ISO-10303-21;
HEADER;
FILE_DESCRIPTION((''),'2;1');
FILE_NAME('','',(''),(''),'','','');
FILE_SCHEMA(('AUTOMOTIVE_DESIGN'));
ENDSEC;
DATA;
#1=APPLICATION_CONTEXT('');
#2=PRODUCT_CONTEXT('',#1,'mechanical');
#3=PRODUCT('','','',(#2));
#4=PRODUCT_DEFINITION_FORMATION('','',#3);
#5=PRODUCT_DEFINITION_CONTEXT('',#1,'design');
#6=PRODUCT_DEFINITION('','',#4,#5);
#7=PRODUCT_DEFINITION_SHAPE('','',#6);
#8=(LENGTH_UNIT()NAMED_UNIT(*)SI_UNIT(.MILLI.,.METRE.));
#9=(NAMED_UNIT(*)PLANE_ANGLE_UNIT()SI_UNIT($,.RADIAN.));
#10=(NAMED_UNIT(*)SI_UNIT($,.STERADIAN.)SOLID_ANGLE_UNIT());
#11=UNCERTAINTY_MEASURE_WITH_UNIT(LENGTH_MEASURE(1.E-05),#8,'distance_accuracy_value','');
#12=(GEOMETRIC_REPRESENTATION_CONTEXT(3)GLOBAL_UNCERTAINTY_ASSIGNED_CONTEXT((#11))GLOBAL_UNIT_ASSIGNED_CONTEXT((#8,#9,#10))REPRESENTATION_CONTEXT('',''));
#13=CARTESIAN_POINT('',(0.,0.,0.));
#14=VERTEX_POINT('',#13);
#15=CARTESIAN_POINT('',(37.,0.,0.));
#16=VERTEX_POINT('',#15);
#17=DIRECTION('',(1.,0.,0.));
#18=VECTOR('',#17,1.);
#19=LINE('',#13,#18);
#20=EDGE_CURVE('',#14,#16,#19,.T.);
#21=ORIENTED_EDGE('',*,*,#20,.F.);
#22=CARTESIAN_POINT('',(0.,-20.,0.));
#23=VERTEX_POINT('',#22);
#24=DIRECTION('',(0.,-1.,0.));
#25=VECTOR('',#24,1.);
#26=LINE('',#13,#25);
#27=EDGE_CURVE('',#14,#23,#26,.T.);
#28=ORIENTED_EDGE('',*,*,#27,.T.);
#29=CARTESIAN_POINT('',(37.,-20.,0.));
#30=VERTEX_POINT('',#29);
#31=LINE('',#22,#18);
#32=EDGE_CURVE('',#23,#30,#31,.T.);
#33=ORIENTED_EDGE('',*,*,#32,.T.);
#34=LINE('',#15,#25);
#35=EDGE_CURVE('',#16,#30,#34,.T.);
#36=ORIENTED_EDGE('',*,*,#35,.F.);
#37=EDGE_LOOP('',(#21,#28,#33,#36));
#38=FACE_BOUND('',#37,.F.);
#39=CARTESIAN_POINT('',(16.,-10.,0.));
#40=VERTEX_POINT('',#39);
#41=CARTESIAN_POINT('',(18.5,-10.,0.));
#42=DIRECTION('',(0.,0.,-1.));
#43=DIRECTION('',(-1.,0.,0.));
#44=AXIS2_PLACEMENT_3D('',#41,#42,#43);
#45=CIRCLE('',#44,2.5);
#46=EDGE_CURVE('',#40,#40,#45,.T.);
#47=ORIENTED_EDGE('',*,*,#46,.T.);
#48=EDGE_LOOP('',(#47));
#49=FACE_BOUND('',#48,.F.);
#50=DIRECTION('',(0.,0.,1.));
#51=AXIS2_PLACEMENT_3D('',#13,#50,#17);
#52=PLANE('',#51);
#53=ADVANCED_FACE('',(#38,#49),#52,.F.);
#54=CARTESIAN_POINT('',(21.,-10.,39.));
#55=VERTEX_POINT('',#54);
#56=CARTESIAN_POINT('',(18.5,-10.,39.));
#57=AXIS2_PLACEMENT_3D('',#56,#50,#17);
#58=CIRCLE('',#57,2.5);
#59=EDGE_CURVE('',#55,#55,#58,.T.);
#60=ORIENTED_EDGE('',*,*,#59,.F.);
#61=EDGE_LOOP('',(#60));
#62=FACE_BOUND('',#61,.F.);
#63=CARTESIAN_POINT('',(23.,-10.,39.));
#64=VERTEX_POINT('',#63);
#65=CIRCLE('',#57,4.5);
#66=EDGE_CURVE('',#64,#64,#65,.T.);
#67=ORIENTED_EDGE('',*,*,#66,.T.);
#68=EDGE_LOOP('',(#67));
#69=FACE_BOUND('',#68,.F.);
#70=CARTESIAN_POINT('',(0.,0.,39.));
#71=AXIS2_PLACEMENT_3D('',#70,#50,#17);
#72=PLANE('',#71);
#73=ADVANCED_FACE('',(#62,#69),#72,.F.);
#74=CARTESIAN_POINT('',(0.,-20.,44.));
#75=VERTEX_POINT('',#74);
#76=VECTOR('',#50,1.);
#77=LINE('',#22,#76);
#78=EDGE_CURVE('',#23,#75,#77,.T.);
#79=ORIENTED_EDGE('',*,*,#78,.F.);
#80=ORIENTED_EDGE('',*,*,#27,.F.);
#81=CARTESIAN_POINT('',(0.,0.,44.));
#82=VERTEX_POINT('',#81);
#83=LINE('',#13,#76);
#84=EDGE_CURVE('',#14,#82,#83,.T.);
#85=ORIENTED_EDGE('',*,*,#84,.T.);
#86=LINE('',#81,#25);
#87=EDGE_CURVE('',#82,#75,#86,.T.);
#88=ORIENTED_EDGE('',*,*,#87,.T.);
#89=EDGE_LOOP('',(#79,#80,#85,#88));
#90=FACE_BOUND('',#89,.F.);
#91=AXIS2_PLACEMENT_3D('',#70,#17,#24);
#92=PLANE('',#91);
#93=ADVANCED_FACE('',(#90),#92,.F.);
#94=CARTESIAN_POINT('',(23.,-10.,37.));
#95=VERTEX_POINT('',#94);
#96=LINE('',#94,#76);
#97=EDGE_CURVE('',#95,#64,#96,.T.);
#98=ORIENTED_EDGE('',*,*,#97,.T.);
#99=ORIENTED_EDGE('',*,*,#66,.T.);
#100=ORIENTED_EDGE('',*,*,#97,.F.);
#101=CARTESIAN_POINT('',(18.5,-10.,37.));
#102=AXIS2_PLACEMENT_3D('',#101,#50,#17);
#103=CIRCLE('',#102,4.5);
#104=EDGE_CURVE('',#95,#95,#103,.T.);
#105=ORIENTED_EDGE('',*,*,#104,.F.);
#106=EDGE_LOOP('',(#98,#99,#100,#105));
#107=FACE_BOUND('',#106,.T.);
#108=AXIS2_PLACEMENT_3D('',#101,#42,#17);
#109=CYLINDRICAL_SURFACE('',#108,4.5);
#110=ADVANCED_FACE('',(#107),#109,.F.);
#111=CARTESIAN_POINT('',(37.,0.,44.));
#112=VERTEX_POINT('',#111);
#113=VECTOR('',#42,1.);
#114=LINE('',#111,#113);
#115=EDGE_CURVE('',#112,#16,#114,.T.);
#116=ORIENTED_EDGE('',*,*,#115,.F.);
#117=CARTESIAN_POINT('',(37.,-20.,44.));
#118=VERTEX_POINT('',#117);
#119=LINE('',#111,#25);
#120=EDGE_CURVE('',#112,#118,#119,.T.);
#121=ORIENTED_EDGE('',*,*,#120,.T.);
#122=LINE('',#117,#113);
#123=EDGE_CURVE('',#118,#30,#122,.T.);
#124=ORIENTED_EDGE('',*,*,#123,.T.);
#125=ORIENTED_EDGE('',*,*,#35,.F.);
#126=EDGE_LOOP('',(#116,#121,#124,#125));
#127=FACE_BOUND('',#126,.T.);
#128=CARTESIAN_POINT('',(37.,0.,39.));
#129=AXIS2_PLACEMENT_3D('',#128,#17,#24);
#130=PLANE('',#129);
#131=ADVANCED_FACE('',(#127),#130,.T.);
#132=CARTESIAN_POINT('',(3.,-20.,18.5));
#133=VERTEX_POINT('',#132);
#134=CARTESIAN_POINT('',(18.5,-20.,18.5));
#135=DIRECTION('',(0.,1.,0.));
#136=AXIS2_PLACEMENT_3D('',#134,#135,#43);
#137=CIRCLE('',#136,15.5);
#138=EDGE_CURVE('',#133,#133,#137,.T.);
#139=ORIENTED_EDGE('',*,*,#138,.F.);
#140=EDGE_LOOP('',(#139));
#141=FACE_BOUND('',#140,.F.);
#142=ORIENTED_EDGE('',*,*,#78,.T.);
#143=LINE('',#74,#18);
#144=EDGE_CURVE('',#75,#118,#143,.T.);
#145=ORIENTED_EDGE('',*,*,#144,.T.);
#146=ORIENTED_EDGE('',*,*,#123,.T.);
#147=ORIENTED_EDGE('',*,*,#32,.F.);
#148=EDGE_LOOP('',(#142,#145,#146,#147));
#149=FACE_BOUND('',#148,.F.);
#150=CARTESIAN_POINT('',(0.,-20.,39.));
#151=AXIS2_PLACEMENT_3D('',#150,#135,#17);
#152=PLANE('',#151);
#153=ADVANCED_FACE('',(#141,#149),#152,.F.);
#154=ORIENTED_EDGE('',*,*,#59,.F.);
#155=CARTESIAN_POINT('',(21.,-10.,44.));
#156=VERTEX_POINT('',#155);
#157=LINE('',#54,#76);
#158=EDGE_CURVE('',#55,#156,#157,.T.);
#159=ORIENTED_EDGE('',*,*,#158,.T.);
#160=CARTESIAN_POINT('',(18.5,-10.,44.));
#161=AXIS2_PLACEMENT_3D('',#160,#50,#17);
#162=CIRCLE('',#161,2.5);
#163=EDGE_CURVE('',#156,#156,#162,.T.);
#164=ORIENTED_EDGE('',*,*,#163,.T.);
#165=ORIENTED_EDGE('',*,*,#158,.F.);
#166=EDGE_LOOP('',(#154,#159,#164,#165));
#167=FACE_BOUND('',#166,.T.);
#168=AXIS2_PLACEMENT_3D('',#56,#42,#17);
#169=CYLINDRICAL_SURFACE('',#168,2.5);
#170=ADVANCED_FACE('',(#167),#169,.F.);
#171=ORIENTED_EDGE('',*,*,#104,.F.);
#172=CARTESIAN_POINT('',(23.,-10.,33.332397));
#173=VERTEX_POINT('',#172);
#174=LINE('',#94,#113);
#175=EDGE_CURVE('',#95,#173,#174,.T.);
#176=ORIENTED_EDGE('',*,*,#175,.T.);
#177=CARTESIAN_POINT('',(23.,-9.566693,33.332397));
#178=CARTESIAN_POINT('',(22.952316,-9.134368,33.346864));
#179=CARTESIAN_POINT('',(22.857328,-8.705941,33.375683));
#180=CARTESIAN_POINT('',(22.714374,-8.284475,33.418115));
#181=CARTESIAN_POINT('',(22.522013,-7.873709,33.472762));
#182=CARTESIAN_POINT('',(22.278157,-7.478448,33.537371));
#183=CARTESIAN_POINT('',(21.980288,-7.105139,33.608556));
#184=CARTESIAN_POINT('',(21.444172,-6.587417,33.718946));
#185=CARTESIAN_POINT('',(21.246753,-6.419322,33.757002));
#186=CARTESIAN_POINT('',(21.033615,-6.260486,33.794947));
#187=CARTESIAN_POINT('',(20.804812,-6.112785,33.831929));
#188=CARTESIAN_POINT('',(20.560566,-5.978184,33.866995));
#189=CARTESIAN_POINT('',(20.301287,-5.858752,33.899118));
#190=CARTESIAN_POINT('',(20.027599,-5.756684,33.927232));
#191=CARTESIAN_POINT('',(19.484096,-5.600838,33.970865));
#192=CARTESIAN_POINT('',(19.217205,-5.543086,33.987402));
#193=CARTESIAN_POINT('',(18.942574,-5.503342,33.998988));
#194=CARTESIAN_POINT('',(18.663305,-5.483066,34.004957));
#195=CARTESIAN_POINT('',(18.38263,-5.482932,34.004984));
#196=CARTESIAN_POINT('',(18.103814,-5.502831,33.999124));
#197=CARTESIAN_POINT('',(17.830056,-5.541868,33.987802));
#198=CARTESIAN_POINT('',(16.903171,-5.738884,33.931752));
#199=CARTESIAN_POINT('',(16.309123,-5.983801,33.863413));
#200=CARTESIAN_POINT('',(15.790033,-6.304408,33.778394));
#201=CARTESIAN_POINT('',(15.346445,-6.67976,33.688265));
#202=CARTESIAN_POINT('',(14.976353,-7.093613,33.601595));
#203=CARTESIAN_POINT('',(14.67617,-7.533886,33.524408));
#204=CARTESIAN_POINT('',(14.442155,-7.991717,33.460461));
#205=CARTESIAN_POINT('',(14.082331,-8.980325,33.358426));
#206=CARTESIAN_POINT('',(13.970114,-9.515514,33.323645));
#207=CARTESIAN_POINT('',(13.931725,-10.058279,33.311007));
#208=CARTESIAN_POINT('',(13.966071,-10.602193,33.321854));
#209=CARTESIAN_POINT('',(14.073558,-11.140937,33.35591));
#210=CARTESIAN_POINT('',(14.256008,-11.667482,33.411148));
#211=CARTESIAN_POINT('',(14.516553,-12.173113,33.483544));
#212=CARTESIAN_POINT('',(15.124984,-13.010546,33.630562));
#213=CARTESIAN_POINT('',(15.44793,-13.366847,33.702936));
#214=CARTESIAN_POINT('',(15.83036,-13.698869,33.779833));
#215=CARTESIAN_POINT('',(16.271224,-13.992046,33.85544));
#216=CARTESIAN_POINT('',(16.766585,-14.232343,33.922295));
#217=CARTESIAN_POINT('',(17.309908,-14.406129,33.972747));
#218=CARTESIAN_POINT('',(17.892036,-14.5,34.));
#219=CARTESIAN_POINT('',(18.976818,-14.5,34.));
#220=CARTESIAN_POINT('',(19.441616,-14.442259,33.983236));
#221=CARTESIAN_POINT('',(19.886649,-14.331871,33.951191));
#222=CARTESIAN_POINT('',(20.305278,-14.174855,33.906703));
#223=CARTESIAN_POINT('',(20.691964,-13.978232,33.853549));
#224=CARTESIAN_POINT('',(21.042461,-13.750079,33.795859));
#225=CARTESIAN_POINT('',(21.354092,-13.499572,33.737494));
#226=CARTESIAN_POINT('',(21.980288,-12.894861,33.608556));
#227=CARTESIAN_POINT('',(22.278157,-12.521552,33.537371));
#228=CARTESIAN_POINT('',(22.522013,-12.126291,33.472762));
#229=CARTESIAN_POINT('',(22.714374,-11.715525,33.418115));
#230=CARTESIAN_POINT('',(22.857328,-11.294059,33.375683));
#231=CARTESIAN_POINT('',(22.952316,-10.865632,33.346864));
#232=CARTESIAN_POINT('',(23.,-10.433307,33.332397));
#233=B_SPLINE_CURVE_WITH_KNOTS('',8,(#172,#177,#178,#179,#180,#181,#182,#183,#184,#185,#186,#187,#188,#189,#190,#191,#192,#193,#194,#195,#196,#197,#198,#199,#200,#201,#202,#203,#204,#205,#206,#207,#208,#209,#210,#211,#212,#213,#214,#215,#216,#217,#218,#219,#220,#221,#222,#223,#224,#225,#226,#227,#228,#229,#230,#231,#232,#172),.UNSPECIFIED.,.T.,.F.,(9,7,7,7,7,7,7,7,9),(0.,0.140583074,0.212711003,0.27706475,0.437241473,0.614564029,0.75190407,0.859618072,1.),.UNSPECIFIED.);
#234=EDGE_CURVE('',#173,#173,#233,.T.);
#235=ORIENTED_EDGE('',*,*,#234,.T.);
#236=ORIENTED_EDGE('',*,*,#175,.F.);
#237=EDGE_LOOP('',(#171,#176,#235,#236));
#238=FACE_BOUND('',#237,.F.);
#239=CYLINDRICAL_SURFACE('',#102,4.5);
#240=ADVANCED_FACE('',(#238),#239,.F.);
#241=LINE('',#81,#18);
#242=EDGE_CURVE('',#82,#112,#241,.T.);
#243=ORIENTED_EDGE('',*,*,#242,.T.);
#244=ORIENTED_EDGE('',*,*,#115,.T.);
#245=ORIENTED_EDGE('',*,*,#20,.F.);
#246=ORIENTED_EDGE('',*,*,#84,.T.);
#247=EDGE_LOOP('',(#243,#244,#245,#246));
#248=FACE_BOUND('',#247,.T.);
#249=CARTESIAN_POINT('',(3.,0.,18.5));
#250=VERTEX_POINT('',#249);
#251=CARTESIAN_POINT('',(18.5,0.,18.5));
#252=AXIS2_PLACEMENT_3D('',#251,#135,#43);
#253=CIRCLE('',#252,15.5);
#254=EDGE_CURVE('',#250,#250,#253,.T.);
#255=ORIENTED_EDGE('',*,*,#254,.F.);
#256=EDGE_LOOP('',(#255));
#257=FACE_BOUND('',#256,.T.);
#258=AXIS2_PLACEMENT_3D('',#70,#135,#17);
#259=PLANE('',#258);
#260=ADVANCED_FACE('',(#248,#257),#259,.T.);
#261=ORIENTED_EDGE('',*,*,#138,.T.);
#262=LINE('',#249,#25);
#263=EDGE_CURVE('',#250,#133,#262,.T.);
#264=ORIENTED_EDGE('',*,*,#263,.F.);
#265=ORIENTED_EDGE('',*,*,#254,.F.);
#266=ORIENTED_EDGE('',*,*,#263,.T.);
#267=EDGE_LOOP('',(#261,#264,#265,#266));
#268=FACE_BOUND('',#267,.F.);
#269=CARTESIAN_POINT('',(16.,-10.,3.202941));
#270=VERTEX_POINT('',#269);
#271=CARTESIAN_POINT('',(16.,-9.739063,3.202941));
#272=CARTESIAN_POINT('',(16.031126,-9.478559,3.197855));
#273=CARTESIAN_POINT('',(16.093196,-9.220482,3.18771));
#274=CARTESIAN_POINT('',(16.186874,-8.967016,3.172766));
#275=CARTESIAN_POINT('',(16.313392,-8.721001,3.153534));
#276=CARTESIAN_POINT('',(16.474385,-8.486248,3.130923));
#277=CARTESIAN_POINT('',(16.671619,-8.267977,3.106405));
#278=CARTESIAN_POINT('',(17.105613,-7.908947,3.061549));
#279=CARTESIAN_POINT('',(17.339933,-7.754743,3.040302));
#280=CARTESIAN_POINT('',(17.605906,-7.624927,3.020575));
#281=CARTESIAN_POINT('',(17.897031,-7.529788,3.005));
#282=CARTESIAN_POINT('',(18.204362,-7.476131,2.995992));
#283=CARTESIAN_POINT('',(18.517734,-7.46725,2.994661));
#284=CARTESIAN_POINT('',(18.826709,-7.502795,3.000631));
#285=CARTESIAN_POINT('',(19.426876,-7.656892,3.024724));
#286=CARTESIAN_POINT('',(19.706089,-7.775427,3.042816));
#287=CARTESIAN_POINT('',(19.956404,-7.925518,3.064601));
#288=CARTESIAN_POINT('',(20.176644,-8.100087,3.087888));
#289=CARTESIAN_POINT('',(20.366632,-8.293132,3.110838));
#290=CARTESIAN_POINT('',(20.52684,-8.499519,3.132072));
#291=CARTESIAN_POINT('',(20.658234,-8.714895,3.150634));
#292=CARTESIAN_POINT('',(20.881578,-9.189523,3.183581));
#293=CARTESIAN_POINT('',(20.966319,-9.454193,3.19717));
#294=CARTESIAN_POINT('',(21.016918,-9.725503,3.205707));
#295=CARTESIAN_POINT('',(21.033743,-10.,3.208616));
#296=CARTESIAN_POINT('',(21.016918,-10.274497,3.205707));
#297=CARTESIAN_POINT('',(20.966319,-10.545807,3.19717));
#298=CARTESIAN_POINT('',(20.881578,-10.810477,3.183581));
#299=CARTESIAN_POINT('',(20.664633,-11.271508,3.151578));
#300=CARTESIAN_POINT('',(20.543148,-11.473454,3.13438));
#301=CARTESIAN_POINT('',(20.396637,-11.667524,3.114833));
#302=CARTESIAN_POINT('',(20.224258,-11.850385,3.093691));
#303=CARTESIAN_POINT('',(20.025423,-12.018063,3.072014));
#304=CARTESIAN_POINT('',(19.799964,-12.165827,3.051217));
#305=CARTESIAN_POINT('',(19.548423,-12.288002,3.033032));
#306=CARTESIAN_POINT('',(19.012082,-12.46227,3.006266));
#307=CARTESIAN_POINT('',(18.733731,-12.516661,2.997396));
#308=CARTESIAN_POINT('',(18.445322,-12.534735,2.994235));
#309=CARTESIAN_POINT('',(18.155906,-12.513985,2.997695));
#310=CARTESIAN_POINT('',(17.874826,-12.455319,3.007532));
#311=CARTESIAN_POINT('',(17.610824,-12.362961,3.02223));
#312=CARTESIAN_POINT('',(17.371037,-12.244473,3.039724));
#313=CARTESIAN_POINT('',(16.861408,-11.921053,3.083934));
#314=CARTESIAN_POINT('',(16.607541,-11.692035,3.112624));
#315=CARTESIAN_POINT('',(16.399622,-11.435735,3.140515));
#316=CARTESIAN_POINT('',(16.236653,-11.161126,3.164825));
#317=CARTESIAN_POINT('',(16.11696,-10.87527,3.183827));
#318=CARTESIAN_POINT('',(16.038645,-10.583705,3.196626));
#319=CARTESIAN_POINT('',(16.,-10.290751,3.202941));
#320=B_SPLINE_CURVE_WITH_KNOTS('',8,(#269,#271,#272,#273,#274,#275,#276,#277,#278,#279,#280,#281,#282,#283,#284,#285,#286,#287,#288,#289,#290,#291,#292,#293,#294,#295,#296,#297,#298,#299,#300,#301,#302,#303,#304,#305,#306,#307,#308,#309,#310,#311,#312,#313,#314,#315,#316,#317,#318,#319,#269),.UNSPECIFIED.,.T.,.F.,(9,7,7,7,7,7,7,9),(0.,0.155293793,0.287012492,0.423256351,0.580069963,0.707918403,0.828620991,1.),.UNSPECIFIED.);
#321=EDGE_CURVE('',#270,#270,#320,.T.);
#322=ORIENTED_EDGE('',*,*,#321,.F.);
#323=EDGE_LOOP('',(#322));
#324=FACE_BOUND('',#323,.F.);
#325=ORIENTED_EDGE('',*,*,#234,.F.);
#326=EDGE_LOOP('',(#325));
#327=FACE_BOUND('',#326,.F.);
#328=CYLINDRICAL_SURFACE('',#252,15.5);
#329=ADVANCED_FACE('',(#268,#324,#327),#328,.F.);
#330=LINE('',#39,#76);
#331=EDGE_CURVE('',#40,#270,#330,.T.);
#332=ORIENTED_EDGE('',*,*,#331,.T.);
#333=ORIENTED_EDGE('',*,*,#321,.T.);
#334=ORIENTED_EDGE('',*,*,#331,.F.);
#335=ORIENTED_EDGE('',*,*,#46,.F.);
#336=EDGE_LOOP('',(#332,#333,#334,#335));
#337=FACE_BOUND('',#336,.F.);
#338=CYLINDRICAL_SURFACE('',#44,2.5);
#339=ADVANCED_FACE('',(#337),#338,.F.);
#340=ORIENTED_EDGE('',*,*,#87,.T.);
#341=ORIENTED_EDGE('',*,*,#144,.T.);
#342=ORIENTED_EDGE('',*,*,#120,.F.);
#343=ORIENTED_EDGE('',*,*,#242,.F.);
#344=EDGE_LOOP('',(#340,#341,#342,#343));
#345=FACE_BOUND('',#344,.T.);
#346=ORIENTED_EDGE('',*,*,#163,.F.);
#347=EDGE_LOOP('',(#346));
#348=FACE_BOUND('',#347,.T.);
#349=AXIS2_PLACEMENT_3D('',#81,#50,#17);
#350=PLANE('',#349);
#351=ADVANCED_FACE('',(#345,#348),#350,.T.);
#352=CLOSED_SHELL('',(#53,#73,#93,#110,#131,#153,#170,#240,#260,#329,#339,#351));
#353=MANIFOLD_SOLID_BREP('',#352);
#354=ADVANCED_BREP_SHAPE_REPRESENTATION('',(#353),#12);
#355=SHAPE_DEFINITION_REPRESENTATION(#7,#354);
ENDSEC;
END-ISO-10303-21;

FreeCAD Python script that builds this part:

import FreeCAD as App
import Part
import Sketcher

V = App.Vector

doc = App.newDocument("Part")
params = doc.addObject("Spreadsheet::Sheet", "Params")
for row, (alias, value) in enumerate([
    ("sketch1_diameter", "31 mm"),
    ("sketch1_width", "37 mm"),
    ("pad1_length", "20 mm"),
    ("sketch2_diameter", "9 mm"),
    ("pocket1_length", "5 mm"),
    ("sketch3_diameter", "5 mm"),
    ("pocket2_length", "5 mm"),
    ("sketch4_diameter", "9 mm"),
    ("sketch4_height", "20 mm"),
    ("pad2_length", "2 mm"),
    ("sketch5_diameter", "5 mm"),
    ("sketch5_height", "20 mm"),
    ("pad3_length", "5 mm"),
], start=1):
    params.set(f"A{row}", alias)
    params.set(f"B{row}", "=" + value)
    params.setAlias(f"B{row}", alias)

body = doc.addObject("PartDesign::Body", "Body")

# Sketch on XZ plane
sketch1 = body.newObject("Sketcher::SketchObject", "Sketch")
sketch1.AttachmentSupport = (doc.getObject("XZ_Plane"), [""])
sketch1.MapMode = "FlatFace"
sketch1.addGeometry([
    Part.LineSegment(V(37, 0, 0), V(0, 0, 0)),  # 0
    Part.LineSegment(V(0, 0, 0), V(0, 37, 0)),  # 1
    Part.LineSegment(V(0, 37, 0), V(37, 37, 0)),  # 2
    Part.LineSegment(V(37, 37, 0), V(37, 0, 0)),  # 3
    Part.Circle(V(18, 18, 0), V(0, 0, 1), 16),  # 4
], False)
sketch1.addConstraint([
    Sketcher.Constraint("Coincident", 0, 2, 1, 1),
    Sketcher.Constraint("Coincident", 1, 2, 2, 1),
    Sketcher.Constraint("Coincident", 2, 2, 3, 1),
    Sketcher.Constraint("Coincident", 3, 2, 0, 1),
    Sketcher.Constraint("Horizontal", 0),
    Sketcher.Constraint("Vertical", 1),
    Sketcher.Constraint("Horizontal", 2),
    Sketcher.Constraint("Vertical", 3),
    Sketcher.Constraint("Coincident", 0, 2, -1, 1),
    Sketcher.Constraint("Equal", 2, 1),
    Sketcher.Constraint("Diameter", 4, 31.0),
    Sketcher.Constraint("DistanceX", 0, 2, 0, 1, 37.0),
    Sketcher.Constraint("DistanceX", -1, 1, 4, 3, 18.5),
    Sketcher.Constraint("DistanceY", -1, 1, 4, 3, 18.5),
])
sketch1.setExpression("Constraints[10]", "Params.sketch1_diameter")
sketch1.setExpression("Constraints[11]", "Params.sketch1_width")
pad1 = body.newObject("PartDesign::Pad", "Pad")
pad1.Profile = sketch1
pad1.setExpression("Length", "Params.pad1_length")

# Sketch on XY plane
sketch2 = body.newObject("Sketcher::SketchObject", "Sketch001")
sketch2.AttachmentSupport = (doc.getObject("XY_Plane"), [""])
sketch2.MapMode = "FlatFace"
sketch2.AttachmentOffset = App.Placement(V(0, 0, 37), App.Rotation())
sketch2.addGeometry(Part.Circle(V(18.5, -10, 0), V(0, 0, 1), 4.5), False)
sketch2.addConstraint([
    Sketcher.Constraint("Diameter", 0, 9.0),
    Sketcher.Constraint("DistanceX", -1, 1, 0, 3, 18.5),
    Sketcher.Constraint("DistanceY", 0, 3, -1, 1, 10.0),
])
sketch2.setExpression("Constraints[0]", "Params.sketch2_diameter")
pocket1 = body.newObject("PartDesign::Pocket", "Pocket")
pocket1.Profile = sketch2
pocket1.setExpression("Length", "Params.pocket1_length")

# Sketch on XY plane
sketch3 = body.newObject("Sketcher::SketchObject", "Sketch002")
sketch3.AttachmentSupport = (doc.getObject("XY_Plane"), [""])
sketch3.MapMode = "FlatFace"
sketch3.addGeometry(Part.Circle(V(18.5, -10, 0), V(0, 0, 1), 2.5), False)
sketch3.addConstraint([
    Sketcher.Constraint("Diameter", 0, 5.0),
    Sketcher.Constraint("DistanceY", 0, 3, -1, 1, 10.0),
    Sketcher.Constraint("DistanceX", -1, 1, 0, 3, 18.5),
])
sketch3.setExpression("Constraints[0]", "Params.sketch3_diameter")
pocket2 = body.newObject("PartDesign::Pocket", "Pocket001")
pocket2.Profile = sketch3
pocket2.setExpression("Length", "Params.pocket2_length")
pocket2.Reversed = True

# Sketch on XY plane
sketch4 = body.newObject("Sketcher::SketchObject", "Sketch003")
sketch4.AttachmentSupport = (doc.getObject("XY_Plane"), [""])
sketch4.MapMode = "FlatFace"
sketch4.AttachmentOffset = App.Placement(V(0, 0, 37), App.Rotation())
sketch4.addGeometry([
    Part.LineSegment(V(37, -20, 0), V(37, 0, 0)),  # 0
    Part.LineSegment(V(37, 0, 0), V(0, 0, 0)),  # 1
    Part.LineSegment(V(0, 0, 0), V(0, -20, 0)),  # 2
    Part.LineSegment(V(0, -20, 0), V(37, -20, 0)),  # 3
    Part.Circle(V(18.5, -10, 0), V(0, 0, 1), 4.5),  # 4
], False)
sketch4.addConstraint([
    Sketcher.Constraint("Coincident", 0, 2, 1, 1),
    Sketcher.Constraint("Coincident", 1, 2, 2, 1),
    Sketcher.Constraint("Coincident", 2, 2, 3, 1),
    Sketcher.Constraint("Coincident", 3, 2, 0, 1),
    Sketcher.Constraint("Vertical", 0),
    Sketcher.Constraint("Horizontal", 1),
    Sketcher.Constraint("Vertical", 2),
    Sketcher.Constraint("Horizontal", 3),
    Sketcher.Constraint("Coincident", 1, 2, -1, 1),
    Sketcher.Constraint("Diameter", 4, 9.0),
    Sketcher.Constraint("DistanceX", -1, 1, 4, 3, 18.5),
    Sketcher.Constraint("DistanceX", 4, 3, 0, 2, 18.5),
    Sketcher.Constraint("DistanceY", 0, 1, 0, 2, 20.0),
    Sketcher.Constraint("DistanceY", 4, 3, -1, 1, 10.0),
])
sketch4.setExpression("Constraints[9]", "Params.sketch4_diameter")
sketch4.setExpression("Constraints[12]", "Params.sketch4_height")
pad2 = body.newObject("PartDesign::Pad", "Pad001")
pad2.Profile = sketch4
pad2.setExpression("Length", "Params.pad2_length")

# Sketch on XY plane
sketch5 = body.newObject("Sketcher::SketchObject", "Sketch004")
sketch5.AttachmentSupport = (doc.getObject("XY_Plane"), [""])
sketch5.MapMode = "FlatFace"
sketch5.AttachmentOffset = App.Placement(V(0, 0, 39), App.Rotation())
sketch5.addGeometry([
    Part.LineSegment(V(37, 0, 0), V(0, 0, 0)),  # 0
    Part.LineSegment(V(0, 0, 0), V(0, -20, 0)),  # 1
    Part.LineSegment(V(0, -20, 0), V(37, -20, 0)),  # 2
    Part.LineSegment(V(37, -20, 0), V(37, 0, 0)),  # 3
    Part.Circle(V(18.5, -10, 0), V(0, 0, 1), 2.5),  # 4
], False)
sketch5.addConstraint([
    Sketcher.Constraint("Coincident", 0, 2, 1, 1),
    Sketcher.Constraint("Coincident", 1, 2, 2, 1),
    Sketcher.Constraint("Coincident", 2, 2, 3, 1),
    Sketcher.Constraint("Coincident", 3, 2, 0, 1),
    Sketcher.Constraint("Horizontal", 0),
    Sketcher.Constraint("Vertical", 1),
    Sketcher.Constraint("Horizontal", 2),
    Sketcher.Constraint("Vertical", 3),
    Sketcher.Constraint("Coincident", 0, 2, -1, 1),
    Sketcher.Constraint("Diameter", 4, 5.0),
    Sketcher.Constraint("DistanceX", -1, 1, 4, 3, 18.5),
    Sketcher.Constraint("DistanceX", 4, 3, 2, 2, 18.5),
    Sketcher.Constraint("DistanceY", 1, 2, 1, 1, 20.0),
    Sketcher.Constraint("DistanceY", 4, 3, -1, 1, 10.0),
])
sketch5.setExpression("Constraints[9]", "Params.sketch5_diameter")
sketch5.setExpression("Constraints[12]", "Params.sketch5_height")
pad3 = body.newObject("PartDesign::Pad", "Pad002")
pad3.Profile = sketch5
pad3.setExpression("Length", "Params.pad3_length")

doc.recompute()
